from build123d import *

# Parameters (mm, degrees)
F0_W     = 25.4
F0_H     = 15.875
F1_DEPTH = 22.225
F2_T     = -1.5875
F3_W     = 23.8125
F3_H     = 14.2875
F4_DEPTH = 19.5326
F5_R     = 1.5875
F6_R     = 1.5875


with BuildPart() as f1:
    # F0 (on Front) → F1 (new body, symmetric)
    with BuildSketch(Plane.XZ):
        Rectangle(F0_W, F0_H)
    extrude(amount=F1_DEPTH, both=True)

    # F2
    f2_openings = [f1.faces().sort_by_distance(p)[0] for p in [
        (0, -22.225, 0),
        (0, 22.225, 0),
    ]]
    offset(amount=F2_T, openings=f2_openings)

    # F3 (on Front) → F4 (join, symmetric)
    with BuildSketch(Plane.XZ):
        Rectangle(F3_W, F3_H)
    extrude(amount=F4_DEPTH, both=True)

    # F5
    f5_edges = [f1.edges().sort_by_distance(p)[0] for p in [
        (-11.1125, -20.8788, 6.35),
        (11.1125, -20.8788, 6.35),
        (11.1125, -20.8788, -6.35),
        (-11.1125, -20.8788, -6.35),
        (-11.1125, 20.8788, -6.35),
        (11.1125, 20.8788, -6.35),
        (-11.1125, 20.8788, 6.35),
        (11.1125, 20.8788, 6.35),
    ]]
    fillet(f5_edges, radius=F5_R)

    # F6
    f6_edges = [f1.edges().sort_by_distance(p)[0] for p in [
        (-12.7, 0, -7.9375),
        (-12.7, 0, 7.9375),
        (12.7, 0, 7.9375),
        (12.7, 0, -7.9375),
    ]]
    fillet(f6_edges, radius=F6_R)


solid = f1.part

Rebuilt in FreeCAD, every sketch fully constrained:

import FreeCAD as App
import Part
import Sketcher
from FreeCAD import Vector
Q = App.Units.Quantity


def edges_at(feature, points):
    """Names of the edges that pass closest to the given points."""
    edges = feature.Shape.Edges
    near = lambda p: min(range(len(edges)), key=lambda i: edges[i].distToShape(Part.Vertex(*p))[0])
    return sorted({f"Edge{near(p) + 1}" for p in points})


def faces_at(feature, points):
    """Names of the faces that lie closest to the given points."""
    faces = feature.Shape.Faces
    near = lambda p: min(range(len(faces)), key=lambda i: faces[i].distToShape(Part.Vertex(*p))[0])
    return sorted({f"Face{near(p) + 1}" for p in points})


def add_polygon(sketch, points):
    """Adds a closed chain of lines whose ends are joined by coincident constraints."""
    first, n = sketch.GeometryCount, len(points)
    for a, b in zip(points, points[1:] + points[:1]):
        sketch.addGeometry(Part.LineSegment(App.Vector(*a, 0), App.Vector(*b, 0)), False)
    for i in range(n):
        sketch.addConstraint(Sketcher.Constraint("Coincident", first + i, 2, first + (i + 1) % n, 1))

doc = App.newDocument("Part")
body = doc.addObject("PartDesign::Body", "Body")

sketch1 = doc.addObject("Sketcher::SketchObject", "Sketch")
body.addObject(sketch1)
sketch1.AttachmentSupport = (doc.XZ_Plane, [""])
sketch1.MapMode = "FlatFace"
add_polygon(sketch1, [(-13, 8), (-13, -8), (13, -8), (13, 8)])
sketch1.addConstraint(Sketcher.Constraint("Vertical", 0))
sketch1.addConstraint(Sketcher.Constraint("Horizontal", 1))
sketch1.addConstraint(Sketcher.Constraint("Vertical", 2))
sketch1.addConstraint(Sketcher.Constraint("Horizontal", 3))
sketch1.addConstraint(Sketcher.Constraint("Symmetric", 0, 2, 2, 2, -1, 1))
sketch1.addConstraint(Sketcher.Constraint("DistanceX", 1, 1, 1, 2, Q("1 in")))
sketch1.addConstraint(Sketcher.Constraint("DistanceY", 0, 2, 0, 1, Q("0.625 in")))
pad1 = doc.addObject("PartDesign::Pad", "Pad")
body.addObject(pad1)
pad1.Profile = sketch1
pad1.Length = Q("1.75 in")
pad1.Midplane = True
doc.recompute()

thickness = doc.addObject("PartDesign::Thickness", "Thickness")
body.addObject(thickness)
thickness.Base = (pad1, faces_at(pad1, [(0, -22.225, 0), (0, 22.225, 0)]))
thickness.Value = Q("0.0625 in")
thickness.Reversed = True
thickness.Join = "Arc"

sketch2 = doc.addObject("Sketcher::SketchObject", "Sketch001")
body.addObject(sketch2)
sketch2.AttachmentSupport = (doc.XZ_Plane, [""])
sketch2.MapMode = "FlatFace"
add_polygon(sketch2, [(-12, 7), (-12, -7), (12, -7), (12, 7)])
sketch2.addConstraint(Sketcher.Constraint("Vertical", 0))
sketch2.addConstraint(Sketcher.Constraint("Horizontal", 1))
sketch2.addConstraint(Sketcher.Constraint("Vertical", 2))
sketch2.addConstraint(Sketcher.Constraint("Horizontal", 3))
sketch2.addConstraint(Sketcher.Constraint("Symmetric", 0, 2, 2, 2, -1, 1))
sketch2.addConstraint(Sketcher.Constraint("DistanceX", 1, 1, 1, 2, Q("0.9375 in")))
sketch2.addConstraint(Sketcher.Constraint("DistanceY", 0, 2, 0, 1, Q("0.5625 in")))
pad2 = doc.addObject("PartDesign::Pad", "Pad001")
body.addObject(pad2)
pad2.Profile = sketch2
pad2.Length = Q("1.538 in")
pad2.Midplane = True
doc.recompute()

fillet = doc.addObject("PartDesign::Fillet", "Fillet")
body.addObject(fillet)
fillet.Base = (pad2, edges_at(pad2, [
    (-11.113, -20.879, 6.35),
    (11.113, -20.879, 6.35),
    (11.113, -20.879, -6.35),
    (-11.113, -20.879, -6.35),
    (-11.113, 20.879, -6.35),
    (11.113, 20.879, -6.35),
    (-11.113, 20.879, 6.35),
    (11.113, 20.879, 6.35),
]))
fillet.Radius = Q("0.0625 in")
doc.recompute()

fillet2 = doc.addObject("PartDesign::Fillet", "Fillet001")
body.addObject(fillet2)
fillet2.Base = (fillet, edges_at(fillet, [
    (-12.7, 0, -7.938),
    (-12.7, 0, 7.938),
    (12.7, 0, 7.938),
    (12.7, 0, -7.938),
]))
fillet2.Radius = Q("0.0625 in")

doc.recompute()
